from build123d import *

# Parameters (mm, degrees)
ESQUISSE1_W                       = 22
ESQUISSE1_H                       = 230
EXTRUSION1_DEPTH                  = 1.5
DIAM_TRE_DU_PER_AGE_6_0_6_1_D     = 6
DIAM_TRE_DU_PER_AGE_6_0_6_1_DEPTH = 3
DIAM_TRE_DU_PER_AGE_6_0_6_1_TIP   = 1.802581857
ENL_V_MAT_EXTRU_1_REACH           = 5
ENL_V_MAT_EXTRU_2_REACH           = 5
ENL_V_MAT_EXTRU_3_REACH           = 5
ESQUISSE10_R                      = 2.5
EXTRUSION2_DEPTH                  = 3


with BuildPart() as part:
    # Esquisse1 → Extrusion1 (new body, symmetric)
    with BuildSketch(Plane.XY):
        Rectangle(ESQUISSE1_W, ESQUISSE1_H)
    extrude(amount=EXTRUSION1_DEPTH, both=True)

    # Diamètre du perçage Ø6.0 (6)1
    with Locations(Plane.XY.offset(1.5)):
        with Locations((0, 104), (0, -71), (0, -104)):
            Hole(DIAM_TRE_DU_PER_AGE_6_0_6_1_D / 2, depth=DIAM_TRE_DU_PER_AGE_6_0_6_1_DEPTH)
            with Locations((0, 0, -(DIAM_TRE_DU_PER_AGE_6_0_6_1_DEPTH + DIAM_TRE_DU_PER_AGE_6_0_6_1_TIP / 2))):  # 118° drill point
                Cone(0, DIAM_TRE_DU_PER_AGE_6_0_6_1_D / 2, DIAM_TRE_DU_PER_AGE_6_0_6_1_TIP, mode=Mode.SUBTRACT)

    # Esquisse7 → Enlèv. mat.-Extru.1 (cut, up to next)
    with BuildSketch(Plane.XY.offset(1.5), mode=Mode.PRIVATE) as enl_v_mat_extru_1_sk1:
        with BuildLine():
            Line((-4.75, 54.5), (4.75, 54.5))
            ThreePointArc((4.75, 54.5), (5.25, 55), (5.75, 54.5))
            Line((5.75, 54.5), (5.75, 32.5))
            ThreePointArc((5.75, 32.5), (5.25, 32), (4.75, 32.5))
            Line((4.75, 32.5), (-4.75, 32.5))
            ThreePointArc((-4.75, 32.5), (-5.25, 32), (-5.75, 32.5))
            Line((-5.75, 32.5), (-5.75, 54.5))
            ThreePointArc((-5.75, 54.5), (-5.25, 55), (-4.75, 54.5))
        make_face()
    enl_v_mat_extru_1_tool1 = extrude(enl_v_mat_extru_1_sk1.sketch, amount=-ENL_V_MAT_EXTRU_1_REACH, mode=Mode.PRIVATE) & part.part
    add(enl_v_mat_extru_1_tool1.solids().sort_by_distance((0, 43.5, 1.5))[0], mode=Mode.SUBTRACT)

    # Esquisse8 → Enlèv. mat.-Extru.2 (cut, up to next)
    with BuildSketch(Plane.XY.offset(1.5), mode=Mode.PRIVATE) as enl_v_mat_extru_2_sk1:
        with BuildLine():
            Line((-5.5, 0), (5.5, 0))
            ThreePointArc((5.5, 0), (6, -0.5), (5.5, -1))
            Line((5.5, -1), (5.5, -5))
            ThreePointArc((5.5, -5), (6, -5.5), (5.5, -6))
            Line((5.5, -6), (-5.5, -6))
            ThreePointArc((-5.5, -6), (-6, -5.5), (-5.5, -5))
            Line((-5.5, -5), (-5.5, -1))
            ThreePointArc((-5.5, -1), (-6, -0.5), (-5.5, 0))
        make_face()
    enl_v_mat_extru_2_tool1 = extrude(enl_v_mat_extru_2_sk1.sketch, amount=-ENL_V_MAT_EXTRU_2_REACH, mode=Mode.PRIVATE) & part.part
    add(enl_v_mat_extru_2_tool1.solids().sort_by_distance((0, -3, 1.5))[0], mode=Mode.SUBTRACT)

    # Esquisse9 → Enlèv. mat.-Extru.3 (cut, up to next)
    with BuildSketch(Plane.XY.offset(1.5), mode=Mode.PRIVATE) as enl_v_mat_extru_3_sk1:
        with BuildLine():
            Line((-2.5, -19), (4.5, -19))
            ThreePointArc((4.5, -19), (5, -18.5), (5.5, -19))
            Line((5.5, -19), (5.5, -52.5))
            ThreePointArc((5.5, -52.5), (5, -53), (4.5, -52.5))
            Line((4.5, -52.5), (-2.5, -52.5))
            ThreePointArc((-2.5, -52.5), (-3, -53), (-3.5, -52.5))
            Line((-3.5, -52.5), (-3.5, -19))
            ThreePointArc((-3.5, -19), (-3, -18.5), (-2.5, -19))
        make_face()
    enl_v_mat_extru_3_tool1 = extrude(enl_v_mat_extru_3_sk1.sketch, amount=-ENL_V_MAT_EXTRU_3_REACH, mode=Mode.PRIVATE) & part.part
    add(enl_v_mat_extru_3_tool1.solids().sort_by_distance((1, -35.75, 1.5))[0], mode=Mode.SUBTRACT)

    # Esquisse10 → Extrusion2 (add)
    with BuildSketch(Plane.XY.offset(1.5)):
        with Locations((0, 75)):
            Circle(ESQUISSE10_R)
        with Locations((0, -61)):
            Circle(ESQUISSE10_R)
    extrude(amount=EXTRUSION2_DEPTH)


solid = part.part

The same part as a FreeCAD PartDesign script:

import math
import FreeCAD as App
import Part
import Sketcher
from FreeCAD import Vector


def add_polygon(sketch, points):
    """Adds a closed chain of lines whose ends are joined by coincident constraints."""
    first, n = sketch.GeometryCount, len(points)
    for a, b in zip(points, points[1:] + points[:1]):
        sketch.addGeometry(Part.LineSegment(App.Vector(*a, 0), App.Vector(*b, 0)), False)
    for i in range(n):
        sketch.addConstraint(Sketcher.Constraint("Coincident", first + i, 2, first + (i + 1) % n, 1))

doc = App.newDocument("Part")
body = doc.addObject("PartDesign::Body", "Body")

# Sketch on XY plane
sketch1 = body.newObject("Sketcher::SketchObject", "Sketch")
sketch1.AttachmentSupport = (doc.getObject("XY_Plane"), [""])
sketch1.MapMode = "FlatFace"
add_polygon(sketch1, [(-11, 115), (-11, -115), (11, -115), (11, 115)])  # lines 0-3
sketch1.addConstraint([
    Sketcher.Constraint("Vertical", 0),
    Sketcher.Constraint("Horizontal", 1),
    Sketcher.Constraint("Vertical", 2),
    Sketcher.Constraint("Horizontal", 3),
    Sketcher.Constraint("Symmetric", 0, 2, 2, 2, -1, 1),
    Sketcher.Constraint("DistanceX", 1, 1, 1, 2, 22.0),
    Sketcher.Constraint("DistanceY", 0, 2, 0, 1, 230.0),
])
pad1 = body.newObject("PartDesign::Pad", "Pad")
pad1.Profile = sketch1
pad1.Length = 3
pad1.Midplane = True

# Sketch on XY plane
sketch2 = body.newObject("Sketcher::SketchObject", "Sketch001")
sketch2.AttachmentSupport = (doc.getObject("XY_Plane"), [""])
sketch2.MapMode = "FlatFace"
sketch2.AttachmentOffset = App.Placement(Vector(0, 0, 1.5), App.Rotation())
sketch2.addGeometry([
    Part.Circle(Vector(0, 104, 0), Vector(0, 0, 1), 3),
    Part.Circle(Vector(0, -71, 0), Vector(0, 0, 1), 3),
    Part.Circle(Vector(0, -104, 0), Vector(0, 0, 1), 3),
], False)
sketch2.addConstraint([
    Sketcher.Constraint("Equal", 0, 1),
    Sketcher.Constraint("Equal", 1, 2),
    Sketcher.Constraint("Symmetric", 0, 3, 2, 3, -1, 1),
    Sketcher.Constraint("PointOnObject", 0, 3, -2),
    Sketcher.Constraint("PointOnObject", 1, 3, -2),
    Sketcher.Constraint("Diameter", 0, 6.0),
    Sketcher.Constraint("DistanceY", -1, 1, 0, 3, 104.0),
    Sketcher.Constraint("DistanceY", 1, 3, -1, 1, 71.0),
])
doc.recompute()
hole = body.newObject("PartDesign::Hole", "Hole")
hole.Profile = sketch2
hole.ThreadType = "None"
hole.Diameter = 6
hole.DepthType = "Dimension"
hole.Depth = 3
hole.DrillPoint = "Angled"
hole.DrillPointAngle = 118

# Sketch on XY plane
sketch3 = body.newObject("Sketcher::SketchObject", "Sketch002")
sketch3.AttachmentSupport = (doc.getObject("XY_Plane"), [""])
sketch3.MapMode = "FlatFace"
sketch3.AttachmentOffset = App.Placement(Vector(0, 0, 1.5), App.Rotation())
sketch3.addGeometry([
    Part.LineSegment(Vector(4.8, 54.5, 0), Vector(-4.8, 54.5, 0)),  # 0
    Part.ArcOfCircle(Part.Circle(Vector(-5.2, 54.5, 0), Vector(0, 0, 1), 0.5), math.radians(0), math.radians(180)),  # 1
    Part.LineSegment(Vector(-5.8, 54.5, 0), Vector(-5.8, 32.5, 0)),  # 2
    Part.ArcOfCircle(Part.Circle(Vector(-5.2, 32.5, 0), Vector(0, 0, 1), 0.5), math.radians(180), math.radians(360)),  # 3
    Part.LineSegment(Vector(-4.8, 32.5, 0), Vector(4.8, 32.5, 0)),  # 4
    Part.ArcOfCircle(Part.Circle(Vector(5.2, 32.5, 0), Vector(0, 0, 1), 0.5), math.radians(180), math.radians(360)),  # 5
    Part.LineSegment(Vector(5.8, 32.5, 0), Vector(5.8, 54.5, 0)),  # 6
    Part.ArcOfCircle(Part.Circle(Vector(5.2, 54.5, 0), Vector(0, 0, 1), 0.5), math.radians(0), math.radians(180)),  # 7
], False)
sketch3.addConstraint([
    Sketcher.Constraint("Coincident", 0, 2, 1, 1),
    Sketcher.Constraint("Tangent", 1, 2, 2, 1),
    Sketcher.Constraint("Tangent", 2, 2, 3, 1),
    Sketcher.Constraint("Coincident", 3, 2, 4, 1),
    Sketcher.Constraint("Coincident", 4, 2, 5, 1),
    Sketcher.Constraint("Tangent", 5, 2, 6, 1),
    Sketcher.Constraint("Tangent", 6, 2, 7, 1),
    Sketcher.Constraint("Coincident", 7, 2, 0, 1),
    Sketcher.Constraint("Horizontal", 0),
    Sketcher.Constraint("Vertical", 2),
    Sketcher.Constraint("Horizontal", 4),
    Sketcher.Constraint("Vertical", 6),
    Sketcher.Constraint("Equal", 1, 3),
    Sketcher.Constraint("Equal", 3, 5),
    Sketcher.Constraint("Equal", 5, 7),
    Sketcher.Constraint("Symmetric", 3, 3, 5, 3, -2),
    Sketcher.Constraint("Horizontal", 1, 3, 7, 3),
    Sketcher.Constraint("Horizontal", 7, 3, 0, 2),
    Sketcher.Constraint("Horizontal", 2, 2, 3, 2),
    Sketcher.Constraint("Radius", 1, 0.5),
    Sketcher.Constraint("DistanceY", 2, 2, 2, 1, 22.0),
    Sketcher.Constraint("DistanceX", 0, 2, 0, 1, 9.5),
    Sketcher.Constraint("DistanceY", -1, 1, 1, 3, 54.5),
])
pocket1 = body.newObject("PartDesign::Pocket", "Pocket")
pocket1.Profile = sketch3
pocket1.Type = "UpToFirst"

# Sketch on XY plane
sketch4 = body.newObject("Sketcher::SketchObject", "Sketch003")
sketch4.AttachmentSupport = (doc.getObject("XY_Plane"), [""])
sketch4.MapMode = "FlatFace"
sketch4.AttachmentOffset = App.Placement(Vector(0, 0, 1.5), App.Rotation())
sketch4.addGeometry([
    Part.LineSegment(Vector(5.5, 0, 0), Vector(-5.5, 0, 0)),  # 0
    Part.ArcOfCircle(Part.Circle(Vector(-5.5, -0.5, 0), Vector(0, 0, 1), 0.5), math.radians(90), math.radians(270)),  # 1
    Part.LineSegment(Vector(-5.5, -1, 0), Vector(-5.5, -5, 0)),  # 2
    Part.ArcOfCircle(Part.Circle(Vector(-5.5, -5.5, 0), Vector(0, 0, 1), 0.5), math.radians(90), math.radians(270)),  # 3
    Part.LineSegment(Vector(-5.5, -6, 0), Vector(5.5, -6, 0)),  # 4
    Part.ArcOfCircle(Part.Circle(Vector(5.5, -5.5, 0), Vector(0, 0, 1), 0.5), math.radians(-90), math.radians(90)),  # 5
    Part.LineSegment(Vector(5.5, -5, 0), Vector(5.5, -1, 0)),  # 6
    Part.ArcOfCircle(Part.Circle(Vector(5.5, -0.5, 0), Vector(0, 0, 1), 0.5), math.radians(-90), math.radians(90)),  # 7
], False)
sketch4.addConstraint([
    Sketcher.Constraint("Tangent", 0, 2, 1, 1),
    Sketcher.Constraint("Coincident", 1, 2, 2, 1),
    Sketcher.Constraint("Coincident", 2, 2, 3, 1),
    Sketcher.Constraint("Tangent", 3, 2, 4, 1),
    Sketcher.Constraint("Tangent", 4, 2, 5, 1),
    Sketcher.Constraint("Coincident", 5, 2, 6, 1),
    Sketcher.Constraint("Coincident", 6, 2, 7, 1),
    Sketcher.Constraint("Tangent", 7, 2, 0, 1),
    Sketcher.Constraint("Horizontal", 0),
    Sketcher.Constraint("Vertical", 2),
    Sketcher.Constraint("Horizontal", 4),
    Sketcher.Constraint("Vertical", 6),
    Sketcher.Constraint("Equal", 1, 3),
    Sketcher.Constraint("Equal", 3, 5),
    Sketcher.Constraint("Equal", 5, 7),
    Sketcher.Constraint("Symmetric", 0, 2, 7, 2, -1, 1),
    Sketcher.Constraint("Vertical", 1, 3, 3, 3),
    Sketcher.Constraint("Vertical", 5, 3, 7, 3),
    Sketcher.Constraint("Vertical", 0, 2, 1, 2),
    Sketcher.Constraint("Vertical", 4, 2, 5, 2),
    Sketcher.Constraint("Radius", 1, 0.5),
    Sketcher.Constraint("DistanceX", 0, 2, 0, 1, 11.0),
    Sketcher.Constraint("DistanceY", 2, 2, 2, 1, 4.0),
])
pocket2 = body.newObject("PartDesign::Pocket", "Pocket001")
pocket2.Profile = sketch4
pocket2.Type = "UpToFirst"

# Sketch on XY plane
sketch5 = body.newObject("Sketcher::SketchObject", "Sketch004")
sketch5.AttachmentSupport = (doc.getObject("XY_Plane"), [""])
sketch5.MapMode = "FlatFace"
sketch5.AttachmentOffset = App.Placement(Vector(0, 0, 1.5), App.Rotation())
sketch5.addGeometry([
    Part.LineSegment(Vector(4.5, -19, 0), Vector(-2.5, -19, 0)),  # 0
    Part.ArcOfCircle(Part.Circle(Vector(-3, -19, 0), Vector(0, 0, 1), 0.5), math.radians(0), math.radians(180)),  # 1
    Part.LineSegment(Vector(-3.5, -19, 0), Vector(-3.5, -52.5, 0)),  # 2
    Part.ArcOfCircle(Part.Circle(Vector(-3, -52.5, 0), Vector(0, 0, 1), 0.5), math.radians(180), math.radians(360)),  # 3
    Part.LineSegment(Vector(-2.5, -52.5, 0), Vector(4.5, -52.5, 0)),  # 4
    Part.ArcOfCircle(Part.Circle(Vector(5, -52.5, 0), Vector(0, 0, 1), 0.5), math.radians(180), math.radians(360)),  # 5
    Part.LineSegment(Vector(5.5, -52.5, 0), Vector(5.5, -19, 0)),  # 6
    Part.ArcOfCircle(Part.Circle(Vector(5, -19, 0), Vector(0, 0, 1), 0.5), math.radians(0), math.radians(180)),  # 7
], False)
sketch5.addConstraint([
    Sketcher.Constraint("Coincident", 0, 2, 1, 1),
    Sketcher.Constraint("Tangent", 1, 2, 2, 1),
    Sketcher.Constraint("Tangent", 2, 2, 3, 1),
    Sketcher.Constraint("Coincident", 3, 2, 4, 1),
    Sketcher.Constraint("Coincident", 4, 2, 5, 1),
    Sketcher.Constraint("Tangent", 5, 2, 6, 1),
    Sketcher.Constraint("Tangent", 6, 2, 7, 1),
    Sketcher.Constraint("Coincident", 7, 2, 0, 1),
    Sketcher.Constraint("Horizontal", 0),
    Sketcher.Constraint("Vertical", 2),
    Sketcher.Constraint("Horizontal", 4),
    Sketcher.Constraint("Vertical", 6),
    Sketcher.Constraint("Equal", 1, 3),
    Sketcher.Constraint("Equal", 3, 5),
    Sketcher.Constraint("Equal", 5, 7),
    Sketcher.Constraint("Horizontal", 3, 3, 5, 3),
    Sketcher.Constraint("Horizontal", 1, 3, 7, 3),
    Sketcher.Constraint("Horizontal", 7, 3, 0, 2),
    Sketcher.Constraint("Horizontal", 2, 2, 3, 2),
    Sketcher.Constraint("Radius", 1, 0.5),
    Sketcher.Constraint("DistanceX", 0, 2, 0, 1, 7.0),
    Sketcher.Constraint("DistanceY", 2, 2, 2, 1, 33.5),
    Sketcher.Constraint("DistanceX", 1, 3, -1, 1, 3.0),
    Sketcher.Constraint("DistanceY", 1, 3, -1, 1, 19.0),
])
pocket3 = body.newObject("PartDesign::Pocket", "Pocket002")
pocket3.Profile = sketch5
pocket3.Type = "UpToFirst"

# Sketch on XY plane
sketch6 = body.newObject("Sketcher::SketchObject", "Sketch005")
sketch6.AttachmentSupport = (doc.getObject("XY_Plane"), [""])
sketch6.MapMode = "FlatFace"
sketch6.AttachmentOffset = App.Placement(Vector(0, 0, 1.5), App.Rotation())
sketch6.addGeometry([
    Part.Circle(Vector(0, 75, 0), Vector(0, 0, 1), 2.5),
    Part.Circle(Vector(0, -61, 0), Vector(0, 0, 1), 2.5),
], False)
sketch6.addConstraint([
    Sketcher.Constraint("Equal", 0, 1),
    Sketcher.Constraint("PointOnObject", 0, 3, -2),
    Sketcher.Constraint("PointOnObject", 1, 3, -2),
    Sketcher.Constraint("Diameter", 0, 5.0),
    Sketcher.Constraint("DistanceY", -1, 1, 0, 3, 75.0),
    Sketcher.Constraint("DistanceY", 1, 3, -1, 1, 61.0),
])
pad2 = body.newObject("PartDesign::Pad", "Pad001")
pad2.Profile = sketch6
pad2.Length = 3

doc.recompute()
